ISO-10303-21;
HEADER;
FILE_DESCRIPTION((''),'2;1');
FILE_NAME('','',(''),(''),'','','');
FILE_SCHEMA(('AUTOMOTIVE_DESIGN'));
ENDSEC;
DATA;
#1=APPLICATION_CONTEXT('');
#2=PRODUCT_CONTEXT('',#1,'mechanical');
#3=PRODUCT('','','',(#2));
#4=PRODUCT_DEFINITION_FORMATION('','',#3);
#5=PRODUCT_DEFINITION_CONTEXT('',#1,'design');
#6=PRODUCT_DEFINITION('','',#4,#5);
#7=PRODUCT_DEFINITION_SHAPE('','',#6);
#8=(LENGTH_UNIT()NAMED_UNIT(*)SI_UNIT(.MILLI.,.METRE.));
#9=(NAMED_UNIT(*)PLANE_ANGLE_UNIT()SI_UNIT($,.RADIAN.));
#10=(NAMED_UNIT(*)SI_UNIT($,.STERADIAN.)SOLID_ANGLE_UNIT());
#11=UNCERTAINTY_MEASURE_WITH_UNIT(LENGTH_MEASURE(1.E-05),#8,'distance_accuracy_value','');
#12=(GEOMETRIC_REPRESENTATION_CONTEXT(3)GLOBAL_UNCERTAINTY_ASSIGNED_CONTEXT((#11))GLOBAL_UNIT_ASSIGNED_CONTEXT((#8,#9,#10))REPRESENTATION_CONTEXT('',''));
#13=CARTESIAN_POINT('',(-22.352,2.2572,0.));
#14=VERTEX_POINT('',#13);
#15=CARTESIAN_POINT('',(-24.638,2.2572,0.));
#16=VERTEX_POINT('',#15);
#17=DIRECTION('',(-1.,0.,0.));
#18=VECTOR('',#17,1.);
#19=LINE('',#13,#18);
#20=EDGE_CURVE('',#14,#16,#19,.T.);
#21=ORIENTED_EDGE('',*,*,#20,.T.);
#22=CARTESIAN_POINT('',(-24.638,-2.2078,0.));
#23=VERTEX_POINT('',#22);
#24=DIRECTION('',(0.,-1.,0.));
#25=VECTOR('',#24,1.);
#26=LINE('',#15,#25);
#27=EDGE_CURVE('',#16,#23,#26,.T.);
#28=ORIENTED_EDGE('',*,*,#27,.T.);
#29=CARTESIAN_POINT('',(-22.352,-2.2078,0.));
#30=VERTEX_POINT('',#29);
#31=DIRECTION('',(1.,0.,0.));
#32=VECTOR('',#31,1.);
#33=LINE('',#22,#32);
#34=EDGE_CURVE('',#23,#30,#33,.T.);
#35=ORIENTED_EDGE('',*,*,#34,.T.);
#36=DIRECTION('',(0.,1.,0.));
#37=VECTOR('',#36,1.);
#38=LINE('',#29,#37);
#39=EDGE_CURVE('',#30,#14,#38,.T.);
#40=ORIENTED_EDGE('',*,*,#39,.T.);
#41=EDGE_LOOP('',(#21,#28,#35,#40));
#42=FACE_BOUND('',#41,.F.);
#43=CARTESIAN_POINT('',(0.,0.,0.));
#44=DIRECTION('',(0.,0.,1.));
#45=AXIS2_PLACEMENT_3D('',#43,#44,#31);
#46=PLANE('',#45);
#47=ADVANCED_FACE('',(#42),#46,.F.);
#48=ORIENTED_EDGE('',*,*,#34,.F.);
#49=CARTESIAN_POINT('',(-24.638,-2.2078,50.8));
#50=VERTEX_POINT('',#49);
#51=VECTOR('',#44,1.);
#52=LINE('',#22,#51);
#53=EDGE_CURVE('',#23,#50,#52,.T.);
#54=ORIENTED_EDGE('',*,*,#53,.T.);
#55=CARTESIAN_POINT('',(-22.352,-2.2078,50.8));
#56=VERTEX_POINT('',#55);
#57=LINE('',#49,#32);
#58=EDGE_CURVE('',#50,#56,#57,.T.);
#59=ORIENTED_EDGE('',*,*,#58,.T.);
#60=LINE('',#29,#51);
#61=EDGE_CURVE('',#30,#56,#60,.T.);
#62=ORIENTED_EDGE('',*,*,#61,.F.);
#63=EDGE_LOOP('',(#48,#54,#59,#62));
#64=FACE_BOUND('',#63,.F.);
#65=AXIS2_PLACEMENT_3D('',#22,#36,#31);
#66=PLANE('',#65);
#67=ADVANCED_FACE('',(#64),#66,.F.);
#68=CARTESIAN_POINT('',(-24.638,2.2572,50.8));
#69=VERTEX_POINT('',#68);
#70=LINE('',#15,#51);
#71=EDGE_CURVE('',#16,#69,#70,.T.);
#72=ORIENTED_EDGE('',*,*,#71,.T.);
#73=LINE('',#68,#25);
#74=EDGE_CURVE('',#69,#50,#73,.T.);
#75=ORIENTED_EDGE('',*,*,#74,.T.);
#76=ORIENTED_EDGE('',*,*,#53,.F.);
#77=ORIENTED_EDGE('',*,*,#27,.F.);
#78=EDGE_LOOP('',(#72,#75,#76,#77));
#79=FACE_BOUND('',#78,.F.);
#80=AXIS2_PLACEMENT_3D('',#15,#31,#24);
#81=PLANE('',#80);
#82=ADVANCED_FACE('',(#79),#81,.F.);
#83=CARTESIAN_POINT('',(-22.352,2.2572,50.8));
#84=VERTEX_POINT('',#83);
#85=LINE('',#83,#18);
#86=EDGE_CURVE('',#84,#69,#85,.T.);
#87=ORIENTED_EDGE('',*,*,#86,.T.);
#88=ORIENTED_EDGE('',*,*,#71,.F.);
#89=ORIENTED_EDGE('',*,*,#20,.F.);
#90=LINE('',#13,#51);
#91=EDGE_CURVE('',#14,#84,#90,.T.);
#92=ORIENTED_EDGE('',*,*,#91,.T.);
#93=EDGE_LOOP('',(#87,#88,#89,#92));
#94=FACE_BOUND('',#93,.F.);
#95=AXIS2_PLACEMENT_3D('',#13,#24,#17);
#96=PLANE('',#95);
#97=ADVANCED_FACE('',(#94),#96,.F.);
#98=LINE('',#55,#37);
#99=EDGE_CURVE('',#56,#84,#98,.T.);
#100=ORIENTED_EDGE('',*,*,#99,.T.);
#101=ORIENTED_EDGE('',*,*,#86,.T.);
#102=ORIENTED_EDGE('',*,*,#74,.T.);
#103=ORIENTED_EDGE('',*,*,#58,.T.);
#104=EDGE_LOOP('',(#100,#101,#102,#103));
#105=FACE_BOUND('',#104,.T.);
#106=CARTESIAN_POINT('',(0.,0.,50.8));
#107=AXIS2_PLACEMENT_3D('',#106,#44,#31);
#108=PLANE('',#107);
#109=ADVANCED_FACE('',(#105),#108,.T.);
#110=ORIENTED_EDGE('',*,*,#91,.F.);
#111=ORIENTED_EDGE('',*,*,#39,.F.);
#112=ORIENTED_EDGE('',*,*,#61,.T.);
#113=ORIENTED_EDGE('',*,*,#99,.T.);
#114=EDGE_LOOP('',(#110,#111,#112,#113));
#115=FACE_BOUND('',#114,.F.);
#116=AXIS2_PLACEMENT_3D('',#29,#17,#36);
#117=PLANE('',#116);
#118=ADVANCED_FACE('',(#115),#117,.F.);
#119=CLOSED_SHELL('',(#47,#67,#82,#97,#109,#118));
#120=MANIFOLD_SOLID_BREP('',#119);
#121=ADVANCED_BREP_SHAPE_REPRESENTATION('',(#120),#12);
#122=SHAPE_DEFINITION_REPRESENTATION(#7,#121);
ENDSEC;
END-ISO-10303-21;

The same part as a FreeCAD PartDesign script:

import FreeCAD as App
import Part
import Sketcher

V = App.Vector
Q = App.Units.Quantity

doc = App.newDocument("Part")
params = doc.addObject("Spreadsheet::Sheet", "Params")
for row, (alias, value) in enumerate([
    ("sketch1_width", "0.09 in"),
    ("pad1_length", "2 in"),
], start=1):
    params.set(f"A{row}", alias)
    params.set(f"B{row}", "=" + value)
    params.setAlias(f"B{row}", alias)

body = doc.addObject("PartDesign::Body", "Body")

# Sketch on XY plane
sketch1 = body.newObject("Sketcher::SketchObject", "Sketch")
sketch1.AttachmentSupport = (doc.getObject("XY_Plane"), [""])
sketch1.MapMode = "FlatFace"
sketch1.addGeometry([
    Part.LineSegment(V(-24.6, 2.3, 0), V(-24.6, -2.2, 0)),
    Part.LineSegment(V(-24.6, -2.2, 0), V(-22.4, -2.2, 0)),
    Part.LineSegment(V(-22.4, -2.2, 0), V(-22.4, 2.3, 0)),
    Part.LineSegment(V(-22.4, 2.3, 0), V(-24.6, 2.3, 0)),
], False)
sketch1.addConstraint([
    Sketcher.Constraint("Coincident", 0, 2, 1, 1),
    Sketcher.Constraint("Coincident", 1, 2, 2, 1),
    Sketcher.Constraint("Coincident", 2, 2, 3, 1),
    Sketcher.Constraint("Coincident", 3, 2, 0, 1),
    Sketcher.Constraint("Vertical", 0),
    Sketcher.Constraint("Horizontal", 1),
    Sketcher.Constraint("Vertical", 2),
    Sketcher.Constraint("Horizontal", 3),
    Sketcher.Constraint("DistanceX", 1, 1, 1, 2, Q("0.09 in")),
    Sketcher.Constraint("DistanceX", 0, 2, -1, 1, Q("0.97 in")),
    Sketcher.Constraint("DistanceY", 0, 2, 0, 1, 4.465),
    Sketcher.Constraint("DistanceY", 0, 2, -1, 1, 2.2078),
])
sketch1.setExpression("Constraints[8]", "Params.sketch1_width")
pad1 = body.newObject("PartDesign::Pad", "Pad")
pad1.Profile = sketch1
pad1.setExpression("Length", "Params.pad1_length")

doc.recompute()
